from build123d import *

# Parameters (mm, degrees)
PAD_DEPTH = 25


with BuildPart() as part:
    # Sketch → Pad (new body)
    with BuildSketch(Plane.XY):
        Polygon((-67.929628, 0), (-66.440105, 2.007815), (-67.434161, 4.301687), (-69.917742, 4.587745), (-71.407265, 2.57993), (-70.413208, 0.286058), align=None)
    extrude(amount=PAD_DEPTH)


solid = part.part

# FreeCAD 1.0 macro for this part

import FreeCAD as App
import Part
import Sketcher
from FreeCAD import Vector


def add_polygon(sketch, points):
    """Adds a closed chain of lines whose ends are joined by coincident constraints."""
    first, n = sketch.GeometryCount, len(points)
    for a, b in zip(points, points[1:] + points[:1]):
        sketch.addGeometry(Part.LineSegment(App.Vector(*a, 0), App.Vector(*b, 0)), False)
    for i in range(n):
        sketch.addConstraint(Sketcher.Constraint("Coincident", first + i, 2, first + (i + 1) % n, 1))

doc = App.newDocument("Part")
body = doc.addObject("PartDesign::Body", "Body")

sketch1 = doc.addObject("Sketcher::SketchObject", "Sketch")
body.addObject(sketch1)
sketch1.AttachmentSupport = (doc.XY_Plane, [""])
sketch1.MapMode = "FlatFace"
add_polygon(sketch1, [(-67.929628, 0), (-66.440105, 2.007815), (-67.434161, 4.301687), (-69.917742, 4.587745), (-71.407265, 2.57993), (-70.413208, 0.286058)])
sketch1.addConstraint([
    Sketcher.Constraint("PointOnObject", 5, 2, -1),
    Sketcher.Constraint("Distance", 0, 2.5),
    Sketcher.Constraint("Distance", 1, 2.499999),
    Sketcher.Constraint("Distance", 2, 2.500001),
    Sketcher.Constraint("Distance", 3, 2.5),
    Sketcher.Constraint("Distance", 4, 2.5),
    Sketcher.Constraint("Distance", 5, 2.5),
    Sketcher.Constraint("DistanceX", 1, 2, -1, 1, 67.434161),
    Sketcher.Constraint("DistanceY", -1, 1, 3, 2, 2.57993),
    Sketcher.Constraint("DistanceX", 2, 2, 1, 2, 2.483581),
    Sketcher.Constraint("DistanceY", 0, 2, 2, 2, 2.57993),
    Sketcher.Constraint("DistanceX", 3, 2, 0, 2, 4.96716),
])
pad1 = doc.addObject("PartDesign::Pad", "Pad")
body.addObject(pad1)
pad1.Profile = sketch1
pad1.Length = 25

doc.recompute()
